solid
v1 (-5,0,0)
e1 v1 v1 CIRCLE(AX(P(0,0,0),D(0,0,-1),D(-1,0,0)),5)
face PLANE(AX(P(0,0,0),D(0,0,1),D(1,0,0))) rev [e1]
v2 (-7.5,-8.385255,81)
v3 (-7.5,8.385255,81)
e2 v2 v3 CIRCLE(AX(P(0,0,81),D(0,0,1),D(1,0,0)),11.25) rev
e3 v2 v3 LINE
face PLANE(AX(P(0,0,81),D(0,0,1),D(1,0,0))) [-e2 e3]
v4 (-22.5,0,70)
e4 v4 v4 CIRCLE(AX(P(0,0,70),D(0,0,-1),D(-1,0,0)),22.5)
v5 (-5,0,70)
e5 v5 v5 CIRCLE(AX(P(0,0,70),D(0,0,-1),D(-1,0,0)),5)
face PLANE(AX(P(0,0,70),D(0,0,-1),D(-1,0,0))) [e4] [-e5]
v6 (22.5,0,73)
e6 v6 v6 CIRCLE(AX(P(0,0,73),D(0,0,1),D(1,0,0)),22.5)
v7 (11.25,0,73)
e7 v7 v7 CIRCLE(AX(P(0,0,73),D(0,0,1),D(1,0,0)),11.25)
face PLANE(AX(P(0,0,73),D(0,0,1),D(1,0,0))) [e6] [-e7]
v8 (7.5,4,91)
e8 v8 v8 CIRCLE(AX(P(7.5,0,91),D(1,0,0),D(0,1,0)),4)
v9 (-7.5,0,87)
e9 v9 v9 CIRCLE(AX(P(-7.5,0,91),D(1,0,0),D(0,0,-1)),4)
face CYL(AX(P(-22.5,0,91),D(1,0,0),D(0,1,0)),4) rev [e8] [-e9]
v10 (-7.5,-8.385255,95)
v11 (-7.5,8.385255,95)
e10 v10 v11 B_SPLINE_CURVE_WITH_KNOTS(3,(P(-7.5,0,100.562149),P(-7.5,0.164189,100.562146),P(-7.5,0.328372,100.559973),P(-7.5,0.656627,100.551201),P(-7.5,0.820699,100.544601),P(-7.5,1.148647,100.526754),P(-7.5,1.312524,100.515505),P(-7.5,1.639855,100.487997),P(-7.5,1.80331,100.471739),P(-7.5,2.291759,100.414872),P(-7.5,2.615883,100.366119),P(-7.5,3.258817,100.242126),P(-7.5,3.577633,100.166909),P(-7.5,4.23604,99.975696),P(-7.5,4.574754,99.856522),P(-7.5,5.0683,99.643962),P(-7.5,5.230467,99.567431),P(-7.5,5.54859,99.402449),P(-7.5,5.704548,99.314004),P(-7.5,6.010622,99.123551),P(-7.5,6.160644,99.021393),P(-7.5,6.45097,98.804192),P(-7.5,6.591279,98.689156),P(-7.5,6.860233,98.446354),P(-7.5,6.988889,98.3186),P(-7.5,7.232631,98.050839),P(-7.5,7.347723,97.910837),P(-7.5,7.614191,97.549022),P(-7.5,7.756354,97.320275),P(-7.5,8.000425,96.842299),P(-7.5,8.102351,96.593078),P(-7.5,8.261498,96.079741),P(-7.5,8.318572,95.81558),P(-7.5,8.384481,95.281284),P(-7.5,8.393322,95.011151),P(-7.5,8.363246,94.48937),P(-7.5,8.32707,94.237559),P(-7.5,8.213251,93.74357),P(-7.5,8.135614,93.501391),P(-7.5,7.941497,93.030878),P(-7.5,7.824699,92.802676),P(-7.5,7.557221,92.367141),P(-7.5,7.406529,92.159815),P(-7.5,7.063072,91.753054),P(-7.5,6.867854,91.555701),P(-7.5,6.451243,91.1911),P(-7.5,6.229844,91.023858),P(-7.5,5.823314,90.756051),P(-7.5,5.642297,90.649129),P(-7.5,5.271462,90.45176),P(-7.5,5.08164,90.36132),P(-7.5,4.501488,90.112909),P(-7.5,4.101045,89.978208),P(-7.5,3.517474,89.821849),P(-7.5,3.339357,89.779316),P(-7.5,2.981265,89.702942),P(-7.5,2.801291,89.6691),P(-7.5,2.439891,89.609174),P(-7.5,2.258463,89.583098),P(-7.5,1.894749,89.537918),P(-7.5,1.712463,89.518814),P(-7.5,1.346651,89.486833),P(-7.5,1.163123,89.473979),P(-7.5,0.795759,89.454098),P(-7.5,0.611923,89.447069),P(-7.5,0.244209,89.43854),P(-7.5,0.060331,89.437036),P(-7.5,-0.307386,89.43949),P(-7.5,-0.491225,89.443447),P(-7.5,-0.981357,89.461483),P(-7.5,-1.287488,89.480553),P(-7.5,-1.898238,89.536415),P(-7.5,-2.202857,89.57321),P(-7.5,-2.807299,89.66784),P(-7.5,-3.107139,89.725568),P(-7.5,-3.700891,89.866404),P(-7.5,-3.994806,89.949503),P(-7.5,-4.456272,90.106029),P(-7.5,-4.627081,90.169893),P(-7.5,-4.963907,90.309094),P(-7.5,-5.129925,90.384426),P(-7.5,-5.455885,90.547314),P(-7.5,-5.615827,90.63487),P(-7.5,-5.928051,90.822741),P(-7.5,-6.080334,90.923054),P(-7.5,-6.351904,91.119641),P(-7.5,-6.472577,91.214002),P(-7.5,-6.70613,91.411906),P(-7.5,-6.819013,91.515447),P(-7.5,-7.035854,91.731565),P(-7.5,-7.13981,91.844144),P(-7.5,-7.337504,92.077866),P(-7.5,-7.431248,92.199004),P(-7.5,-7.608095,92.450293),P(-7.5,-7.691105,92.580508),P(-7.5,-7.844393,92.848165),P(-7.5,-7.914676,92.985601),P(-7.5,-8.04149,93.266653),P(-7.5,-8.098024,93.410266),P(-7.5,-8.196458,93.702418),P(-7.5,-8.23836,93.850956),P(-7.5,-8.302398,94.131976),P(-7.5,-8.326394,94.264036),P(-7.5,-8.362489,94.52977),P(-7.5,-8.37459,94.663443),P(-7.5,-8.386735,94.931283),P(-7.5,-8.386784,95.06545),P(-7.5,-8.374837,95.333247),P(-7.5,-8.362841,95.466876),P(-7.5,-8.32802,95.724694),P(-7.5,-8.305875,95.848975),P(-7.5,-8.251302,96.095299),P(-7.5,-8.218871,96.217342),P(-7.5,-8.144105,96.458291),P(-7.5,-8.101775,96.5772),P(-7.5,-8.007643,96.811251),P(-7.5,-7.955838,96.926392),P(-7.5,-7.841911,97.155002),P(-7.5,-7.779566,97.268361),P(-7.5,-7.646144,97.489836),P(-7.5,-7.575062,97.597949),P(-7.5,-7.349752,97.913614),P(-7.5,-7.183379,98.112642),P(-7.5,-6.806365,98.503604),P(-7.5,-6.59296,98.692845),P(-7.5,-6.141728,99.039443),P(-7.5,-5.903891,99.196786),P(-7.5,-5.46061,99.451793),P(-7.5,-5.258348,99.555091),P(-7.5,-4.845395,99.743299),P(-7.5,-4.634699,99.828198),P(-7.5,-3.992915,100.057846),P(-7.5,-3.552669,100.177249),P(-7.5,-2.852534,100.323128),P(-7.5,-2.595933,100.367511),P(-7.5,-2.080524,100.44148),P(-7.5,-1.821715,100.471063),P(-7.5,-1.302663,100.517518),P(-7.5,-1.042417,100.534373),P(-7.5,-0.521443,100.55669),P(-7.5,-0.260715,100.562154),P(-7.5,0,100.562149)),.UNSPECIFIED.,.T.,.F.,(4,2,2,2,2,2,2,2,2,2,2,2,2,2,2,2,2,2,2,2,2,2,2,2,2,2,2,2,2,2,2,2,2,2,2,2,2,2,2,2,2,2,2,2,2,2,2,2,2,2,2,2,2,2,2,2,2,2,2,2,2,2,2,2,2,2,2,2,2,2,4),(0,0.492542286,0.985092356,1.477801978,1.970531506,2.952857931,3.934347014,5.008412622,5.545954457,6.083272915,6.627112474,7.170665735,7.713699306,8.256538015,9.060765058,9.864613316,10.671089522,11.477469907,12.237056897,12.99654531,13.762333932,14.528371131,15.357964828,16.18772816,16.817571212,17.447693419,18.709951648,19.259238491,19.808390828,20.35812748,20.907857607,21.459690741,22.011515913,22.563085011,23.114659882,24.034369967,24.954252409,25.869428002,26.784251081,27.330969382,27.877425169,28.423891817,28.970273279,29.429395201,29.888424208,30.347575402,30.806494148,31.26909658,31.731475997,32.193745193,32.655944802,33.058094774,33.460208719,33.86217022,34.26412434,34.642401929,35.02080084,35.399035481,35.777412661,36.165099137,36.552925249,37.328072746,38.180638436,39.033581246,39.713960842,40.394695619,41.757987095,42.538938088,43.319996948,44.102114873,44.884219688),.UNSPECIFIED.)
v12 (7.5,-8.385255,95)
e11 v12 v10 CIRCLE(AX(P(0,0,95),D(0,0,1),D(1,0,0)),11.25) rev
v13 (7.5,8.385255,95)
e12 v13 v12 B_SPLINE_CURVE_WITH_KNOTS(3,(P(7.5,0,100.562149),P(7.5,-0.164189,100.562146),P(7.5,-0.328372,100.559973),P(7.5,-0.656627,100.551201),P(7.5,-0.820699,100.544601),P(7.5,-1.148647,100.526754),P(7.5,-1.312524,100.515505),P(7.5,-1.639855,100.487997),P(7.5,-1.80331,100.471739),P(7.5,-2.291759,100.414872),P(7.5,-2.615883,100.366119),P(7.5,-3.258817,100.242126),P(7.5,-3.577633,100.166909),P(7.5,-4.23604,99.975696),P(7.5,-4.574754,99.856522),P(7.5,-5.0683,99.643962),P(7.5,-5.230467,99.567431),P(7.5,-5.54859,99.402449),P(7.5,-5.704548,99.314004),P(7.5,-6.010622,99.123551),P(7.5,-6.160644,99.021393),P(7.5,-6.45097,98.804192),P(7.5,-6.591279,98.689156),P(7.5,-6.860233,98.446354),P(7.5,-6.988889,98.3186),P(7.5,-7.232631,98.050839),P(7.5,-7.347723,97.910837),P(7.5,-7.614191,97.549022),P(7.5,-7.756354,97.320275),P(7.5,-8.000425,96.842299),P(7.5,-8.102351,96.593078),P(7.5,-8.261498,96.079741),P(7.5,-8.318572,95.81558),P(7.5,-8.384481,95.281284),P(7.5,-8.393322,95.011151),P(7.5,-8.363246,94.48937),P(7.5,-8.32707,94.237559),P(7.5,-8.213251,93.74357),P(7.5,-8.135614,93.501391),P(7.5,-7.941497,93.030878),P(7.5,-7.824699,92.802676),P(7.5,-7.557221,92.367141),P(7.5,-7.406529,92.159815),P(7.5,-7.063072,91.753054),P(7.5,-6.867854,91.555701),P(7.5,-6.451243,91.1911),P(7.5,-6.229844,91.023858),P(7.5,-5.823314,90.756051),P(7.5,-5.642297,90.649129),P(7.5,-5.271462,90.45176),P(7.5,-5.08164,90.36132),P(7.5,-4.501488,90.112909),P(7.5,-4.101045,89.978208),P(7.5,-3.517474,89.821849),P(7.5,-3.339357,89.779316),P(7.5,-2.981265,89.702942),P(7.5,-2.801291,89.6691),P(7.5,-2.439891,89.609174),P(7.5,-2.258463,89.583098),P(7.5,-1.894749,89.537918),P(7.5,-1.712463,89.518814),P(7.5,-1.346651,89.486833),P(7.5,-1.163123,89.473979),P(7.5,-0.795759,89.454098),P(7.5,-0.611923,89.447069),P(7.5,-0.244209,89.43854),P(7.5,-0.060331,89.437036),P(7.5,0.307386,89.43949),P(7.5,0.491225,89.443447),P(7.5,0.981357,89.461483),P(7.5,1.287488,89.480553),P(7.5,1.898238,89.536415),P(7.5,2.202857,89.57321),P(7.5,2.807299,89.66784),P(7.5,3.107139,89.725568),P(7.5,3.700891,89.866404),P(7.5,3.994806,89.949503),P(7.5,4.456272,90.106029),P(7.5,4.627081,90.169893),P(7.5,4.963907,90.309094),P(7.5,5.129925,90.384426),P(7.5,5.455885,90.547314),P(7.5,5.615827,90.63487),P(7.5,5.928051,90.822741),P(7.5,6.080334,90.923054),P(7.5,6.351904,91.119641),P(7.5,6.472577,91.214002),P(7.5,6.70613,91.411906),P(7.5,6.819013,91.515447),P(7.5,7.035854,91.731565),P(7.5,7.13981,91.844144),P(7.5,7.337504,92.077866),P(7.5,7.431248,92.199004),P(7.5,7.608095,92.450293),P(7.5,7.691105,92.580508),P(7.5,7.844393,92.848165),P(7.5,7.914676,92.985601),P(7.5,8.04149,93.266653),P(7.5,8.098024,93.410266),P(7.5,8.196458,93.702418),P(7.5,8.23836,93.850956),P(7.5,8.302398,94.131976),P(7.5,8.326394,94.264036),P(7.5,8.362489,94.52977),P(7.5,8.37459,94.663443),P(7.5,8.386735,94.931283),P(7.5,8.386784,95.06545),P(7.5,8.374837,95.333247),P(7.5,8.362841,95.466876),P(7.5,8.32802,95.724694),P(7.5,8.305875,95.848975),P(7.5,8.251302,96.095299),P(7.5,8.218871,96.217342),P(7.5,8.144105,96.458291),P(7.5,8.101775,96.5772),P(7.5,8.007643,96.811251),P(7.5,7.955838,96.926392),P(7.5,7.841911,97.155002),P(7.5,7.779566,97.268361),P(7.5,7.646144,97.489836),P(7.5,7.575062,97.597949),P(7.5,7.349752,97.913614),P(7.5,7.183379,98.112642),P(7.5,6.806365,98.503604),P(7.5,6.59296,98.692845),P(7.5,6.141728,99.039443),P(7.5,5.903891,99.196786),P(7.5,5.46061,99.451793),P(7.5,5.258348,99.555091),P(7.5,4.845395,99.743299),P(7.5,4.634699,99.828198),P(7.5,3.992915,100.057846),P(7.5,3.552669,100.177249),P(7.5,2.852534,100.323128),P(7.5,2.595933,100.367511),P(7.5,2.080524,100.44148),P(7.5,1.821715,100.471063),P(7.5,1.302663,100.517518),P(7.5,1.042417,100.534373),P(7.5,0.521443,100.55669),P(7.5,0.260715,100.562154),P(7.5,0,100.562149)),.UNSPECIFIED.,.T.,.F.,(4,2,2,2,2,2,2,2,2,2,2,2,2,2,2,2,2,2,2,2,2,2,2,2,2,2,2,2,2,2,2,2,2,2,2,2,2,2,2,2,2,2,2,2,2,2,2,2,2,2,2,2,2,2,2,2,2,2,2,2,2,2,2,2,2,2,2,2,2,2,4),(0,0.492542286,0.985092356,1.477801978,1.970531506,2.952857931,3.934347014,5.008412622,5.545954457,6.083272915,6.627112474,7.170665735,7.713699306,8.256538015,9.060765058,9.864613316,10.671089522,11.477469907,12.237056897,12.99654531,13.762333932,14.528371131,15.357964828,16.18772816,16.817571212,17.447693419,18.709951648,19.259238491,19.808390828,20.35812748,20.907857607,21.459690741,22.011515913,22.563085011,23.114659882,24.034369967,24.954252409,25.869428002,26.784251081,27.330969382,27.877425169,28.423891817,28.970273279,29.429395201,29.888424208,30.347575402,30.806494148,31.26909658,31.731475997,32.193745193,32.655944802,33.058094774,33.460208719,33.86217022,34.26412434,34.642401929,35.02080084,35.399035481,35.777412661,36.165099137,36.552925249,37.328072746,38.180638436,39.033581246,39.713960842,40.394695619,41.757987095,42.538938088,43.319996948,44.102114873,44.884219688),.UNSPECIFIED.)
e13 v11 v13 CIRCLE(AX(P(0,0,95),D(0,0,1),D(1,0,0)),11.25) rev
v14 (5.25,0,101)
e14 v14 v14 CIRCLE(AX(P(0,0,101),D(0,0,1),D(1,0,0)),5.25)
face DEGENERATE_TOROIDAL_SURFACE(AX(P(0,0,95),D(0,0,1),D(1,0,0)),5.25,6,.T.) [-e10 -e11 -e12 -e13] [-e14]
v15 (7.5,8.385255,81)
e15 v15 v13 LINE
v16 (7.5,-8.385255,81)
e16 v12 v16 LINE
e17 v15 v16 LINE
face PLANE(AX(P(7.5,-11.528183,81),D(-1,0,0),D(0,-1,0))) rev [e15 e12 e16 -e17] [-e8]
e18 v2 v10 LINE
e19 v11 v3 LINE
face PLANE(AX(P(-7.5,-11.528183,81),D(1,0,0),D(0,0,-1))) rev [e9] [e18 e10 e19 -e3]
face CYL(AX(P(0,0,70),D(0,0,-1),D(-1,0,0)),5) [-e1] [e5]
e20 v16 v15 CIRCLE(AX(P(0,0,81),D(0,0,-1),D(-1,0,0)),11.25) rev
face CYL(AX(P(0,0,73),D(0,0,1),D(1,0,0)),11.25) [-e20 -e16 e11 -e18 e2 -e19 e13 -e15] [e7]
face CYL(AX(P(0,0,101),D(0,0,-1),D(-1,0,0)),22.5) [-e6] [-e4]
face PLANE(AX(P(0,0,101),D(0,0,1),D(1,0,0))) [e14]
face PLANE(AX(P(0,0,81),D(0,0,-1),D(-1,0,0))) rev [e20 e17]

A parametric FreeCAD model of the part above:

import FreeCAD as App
import Part
import Sketcher
from FreeCAD import Vector


def edges_at(feature, points):
    """Names of the edges that pass closest to the given points."""
    edges = feature.Shape.Edges
    near = lambda p: min(range(len(edges)), key=lambda i: edges[i].distToShape(Part.Vertex(*p))[0])
    return sorted({f"Edge{near(p) + 1}" for p in points})


def add_polygon(sketch, points):
    """Adds a closed chain of lines whose ends are joined by coincident constraints."""
    first, n = sketch.GeometryCount, len(points)
    for a, b in zip(points, points[1:] + points[:1]):
        sketch.addGeometry(Part.LineSegment(App.Vector(*a, 0), App.Vector(*b, 0)), False)
    for i in range(n):
        sketch.addConstraint(Sketcher.Constraint("Coincident", first + i, 2, first + (i + 1) % n, 1))

doc = App.newDocument("Part")
params = doc.addObject("Spreadsheet::Sheet", "Params")
for row, (alias, value) in enumerate([
    ("sketch1_diameter", "45 mm"),
    ("pad1_length", "101 mm"),
    ("sketch2_diameter", "45 mm"),
    ("sketch2_diameter2", "10 mm"),
    ("pocket1_length", "70 mm"),
    ("sketch3_diameter", "45 mm"),
    ("sketch3_diameter2", "22.5 mm"),
    ("pocket2_length", "28 mm"),
    ("fillet_radius", "6 mm"),
    ("pocket3_length", "20 mm"),
    ("sketch5_diameter", "8 mm"),
], start=1):
    params.set(f"A{row}", alias)
    params.set(f"B{row}", "=" + value)
    params.setAlias(f"B{row}", alias)

body = doc.addObject("PartDesign::Body", "Body")

sketch1 = doc.addObject("Sketcher::SketchObject", "Sketch")
body.addObject(sketch1)
sketch1.AttachmentSupport = (doc.XY_Plane, [""])
sketch1.MapMode = "FlatFace"
sketch1.addGeometry(Part.Circle(Vector(0, 0, 0), Vector(0, 0, 1), 22), False)
sketch1.addConstraint(Sketcher.Constraint("Coincident", 0, 3, -1, 1))
sketch1.addConstraint(Sketcher.Constraint("Diameter", 0, 45.0))
sketch1.setExpression("Constraints[1]", "Params.sketch1_diameter")
pad1 = doc.addObject("PartDesign::Pad", "Pad")
body.addObject(pad1)
pad1.Profile = sketch1
pad1.setExpression("Length", "Params.pad1_length")

sketch2 = doc.addObject("Sketcher::SketchObject", "Sketch001")
body.addObject(sketch2)
sketch2.AttachmentSupport = (doc.XY_Plane, [""])
sketch2.MapMode = "FlatFace"
sketch2.addGeometry(Part.Circle(Vector(0, 0, 0), Vector(0, 0, 1), 22), False)
sketch2.addGeometry(Part.Circle(Vector(0, 0, 0), Vector(0, 0, 1), 5), False)
sketch2.addConstraint(Sketcher.Constraint("Coincident", 0, 3, -1, 1))
sketch2.addConstraint(Sketcher.Constraint("Coincident", 1, 3, -1, 1))
sketch2.addConstraint(Sketcher.Constraint("Diameter", 0, 45.0))
sketch2.addConstraint(Sketcher.Constraint("Diameter", 1, 10.0))
sketch2.setExpression("Constraints[2]", "Params.sketch2_diameter")
sketch2.setExpression("Constraints[3]", "Params.sketch2_diameter2")
pocket1 = doc.addObject("PartDesign::Pocket", "Pocket")
body.addObject(pocket1)
pocket1.Profile = sketch2
pocket1.setExpression("Length", "Params.pocket1_length")
pocket1.Reversed = True

sketch3 = doc.addObject("Sketcher::SketchObject", "Sketch002")
body.addObject(sketch3)
sketch3.AttachmentSupport = (doc.XY_Plane, [""])
sketch3.MapMode = "FlatFace"
sketch3.AttachmentOffset = App.Placement(Vector(0, 0, 73), App.Rotation())
sketch3.addGeometry(Part.Circle(Vector(0, 0, 0), Vector(0, 0, 1), 22), False)
sketch3.addGeometry(Part.Circle(Vector(0, 0, 0), Vector(0, 0, 1), 11), False)
sketch3.addConstraint(Sketcher.Constraint("Coincident", 0, 3, -1, 1))
sketch3.addConstraint(Sketcher.Constraint("Coincident", 1, 3, -1, 1))
sketch3.addConstraint(Sketcher.Constraint("Diameter", 0, 45.0))
sketch3.addConstraint(Sketcher.Constraint("Diameter", 1, 22.5))
sketch3.setExpression("Constraints[2]", "Params.sketch3_diameter")
sketch3.setExpression("Constraints[3]", "Params.sketch3_diameter2")
pocket2 = doc.addObject("PartDesign::Pocket", "Pocket001")
body.addObject(pocket2)
pocket2.Profile = sketch3
pocket2.setExpression("Length", "Params.pocket2_length")
pocket2.Reversed = True
doc.recompute()

fillet = doc.addObject("PartDesign::Fillet", "Fillet")
body.addObject(fillet)
fillet.Base = (pocket2, edges_at(pocket2, [(-11.25, 0, 101)]))
fillet.setExpression("Radius", "Params.fillet_radius")

sketch4 = doc.addObject("Sketcher::SketchObject", "Sketch003")
body.addObject(sketch4)
sketch4.AttachmentSupport = (doc.XY_Plane, [""])
sketch4.MapMode = "FlatFace"
sketch4.AttachmentOffset = App.Placement(Vector(0, 0, 101), App.Rotation())
add_polygon(sketch4, [(8, 12), (8, -12), (14, -12), (14, 12)])
add_polygon(sketch4, [(-14, 12), (-14, -12), (-8, -12), (-8, 12)])
sketch4.addConstraint(Sketcher.Constraint("Vertical", 0))
sketch4.addConstraint(Sketcher.Constraint("Horizontal", 1))
sketch4.addConstraint(Sketcher.Constraint("Vertical", 2))
sketch4.addConstraint(Sketcher.Constraint("Horizontal", 3))
sketch4.addConstraint(Sketcher.Constraint("Vertical", 4))
sketch4.addConstraint(Sketcher.Constraint("Horizontal", 5))
sketch4.addConstraint(Sketcher.Constraint("Vertical", 6))
sketch4.addConstraint(Sketcher.Constraint("Horizontal", 7))
sketch4.addConstraint(Sketcher.Constraint("Symmetric", 2, 2, 4, 2, -1, 1))
sketch4.addConstraint(Sketcher.Constraint("Symmetric", 0, 2, 6, 2, -1, 1))
sketch4.addConstraint(Sketcher.Constraint("Horizontal", 1, 2, 4, 2))
sketch4.addConstraint(Sketcher.Constraint("DistanceX", 5, 2, 0, 2, 15.0))
sketch4.addConstraint(Sketcher.Constraint("DistanceX", 1, 1, 1, 2, 6.909859))
sketch4.addConstraint(Sketcher.Constraint("DistanceY", 0, 2, 0, 1, 23.056365))
pocket3 = doc.addObject("PartDesign::Pocket", "Pocket002")
body.addObject(pocket3)
pocket3.Profile = sketch4
pocket3.setExpression("Length", "Params.pocket3_length")

sketch5 = doc.addObject("Sketcher::SketchObject", "Sketch004")
body.addObject(sketch5)
sketch5.AttachmentSupport = (doc.YZ_Plane, [""])
sketch5.MapMode = "FlatFace"
sketch5.AttachmentOffset = App.Placement(Vector(0, 0, 7.5), App.Rotation())
sketch5.addGeometry(Part.Circle(Vector(0, 91, 0), Vector(0, 0, 1), 4), False)
sketch5.addConstraint(Sketcher.Constraint("PointOnObject", 0, 3, -2))
sketch5.addConstraint(Sketcher.Constraint("Diameter", 0, 8.0))
sketch5.addConstraint(Sketcher.Constraint("DistanceY", -1, 1, 0, 3, 91.0))
sketch5.setExpression("Constraints[1]", "Params.sketch5_diameter")
pocket4 = doc.addObject("PartDesign::Pocket", "Pocket003")
body.addObject(pocket4)
pocket4.Profile = sketch5
pocket4.Type = "ThroughAll"

doc.recompute()
